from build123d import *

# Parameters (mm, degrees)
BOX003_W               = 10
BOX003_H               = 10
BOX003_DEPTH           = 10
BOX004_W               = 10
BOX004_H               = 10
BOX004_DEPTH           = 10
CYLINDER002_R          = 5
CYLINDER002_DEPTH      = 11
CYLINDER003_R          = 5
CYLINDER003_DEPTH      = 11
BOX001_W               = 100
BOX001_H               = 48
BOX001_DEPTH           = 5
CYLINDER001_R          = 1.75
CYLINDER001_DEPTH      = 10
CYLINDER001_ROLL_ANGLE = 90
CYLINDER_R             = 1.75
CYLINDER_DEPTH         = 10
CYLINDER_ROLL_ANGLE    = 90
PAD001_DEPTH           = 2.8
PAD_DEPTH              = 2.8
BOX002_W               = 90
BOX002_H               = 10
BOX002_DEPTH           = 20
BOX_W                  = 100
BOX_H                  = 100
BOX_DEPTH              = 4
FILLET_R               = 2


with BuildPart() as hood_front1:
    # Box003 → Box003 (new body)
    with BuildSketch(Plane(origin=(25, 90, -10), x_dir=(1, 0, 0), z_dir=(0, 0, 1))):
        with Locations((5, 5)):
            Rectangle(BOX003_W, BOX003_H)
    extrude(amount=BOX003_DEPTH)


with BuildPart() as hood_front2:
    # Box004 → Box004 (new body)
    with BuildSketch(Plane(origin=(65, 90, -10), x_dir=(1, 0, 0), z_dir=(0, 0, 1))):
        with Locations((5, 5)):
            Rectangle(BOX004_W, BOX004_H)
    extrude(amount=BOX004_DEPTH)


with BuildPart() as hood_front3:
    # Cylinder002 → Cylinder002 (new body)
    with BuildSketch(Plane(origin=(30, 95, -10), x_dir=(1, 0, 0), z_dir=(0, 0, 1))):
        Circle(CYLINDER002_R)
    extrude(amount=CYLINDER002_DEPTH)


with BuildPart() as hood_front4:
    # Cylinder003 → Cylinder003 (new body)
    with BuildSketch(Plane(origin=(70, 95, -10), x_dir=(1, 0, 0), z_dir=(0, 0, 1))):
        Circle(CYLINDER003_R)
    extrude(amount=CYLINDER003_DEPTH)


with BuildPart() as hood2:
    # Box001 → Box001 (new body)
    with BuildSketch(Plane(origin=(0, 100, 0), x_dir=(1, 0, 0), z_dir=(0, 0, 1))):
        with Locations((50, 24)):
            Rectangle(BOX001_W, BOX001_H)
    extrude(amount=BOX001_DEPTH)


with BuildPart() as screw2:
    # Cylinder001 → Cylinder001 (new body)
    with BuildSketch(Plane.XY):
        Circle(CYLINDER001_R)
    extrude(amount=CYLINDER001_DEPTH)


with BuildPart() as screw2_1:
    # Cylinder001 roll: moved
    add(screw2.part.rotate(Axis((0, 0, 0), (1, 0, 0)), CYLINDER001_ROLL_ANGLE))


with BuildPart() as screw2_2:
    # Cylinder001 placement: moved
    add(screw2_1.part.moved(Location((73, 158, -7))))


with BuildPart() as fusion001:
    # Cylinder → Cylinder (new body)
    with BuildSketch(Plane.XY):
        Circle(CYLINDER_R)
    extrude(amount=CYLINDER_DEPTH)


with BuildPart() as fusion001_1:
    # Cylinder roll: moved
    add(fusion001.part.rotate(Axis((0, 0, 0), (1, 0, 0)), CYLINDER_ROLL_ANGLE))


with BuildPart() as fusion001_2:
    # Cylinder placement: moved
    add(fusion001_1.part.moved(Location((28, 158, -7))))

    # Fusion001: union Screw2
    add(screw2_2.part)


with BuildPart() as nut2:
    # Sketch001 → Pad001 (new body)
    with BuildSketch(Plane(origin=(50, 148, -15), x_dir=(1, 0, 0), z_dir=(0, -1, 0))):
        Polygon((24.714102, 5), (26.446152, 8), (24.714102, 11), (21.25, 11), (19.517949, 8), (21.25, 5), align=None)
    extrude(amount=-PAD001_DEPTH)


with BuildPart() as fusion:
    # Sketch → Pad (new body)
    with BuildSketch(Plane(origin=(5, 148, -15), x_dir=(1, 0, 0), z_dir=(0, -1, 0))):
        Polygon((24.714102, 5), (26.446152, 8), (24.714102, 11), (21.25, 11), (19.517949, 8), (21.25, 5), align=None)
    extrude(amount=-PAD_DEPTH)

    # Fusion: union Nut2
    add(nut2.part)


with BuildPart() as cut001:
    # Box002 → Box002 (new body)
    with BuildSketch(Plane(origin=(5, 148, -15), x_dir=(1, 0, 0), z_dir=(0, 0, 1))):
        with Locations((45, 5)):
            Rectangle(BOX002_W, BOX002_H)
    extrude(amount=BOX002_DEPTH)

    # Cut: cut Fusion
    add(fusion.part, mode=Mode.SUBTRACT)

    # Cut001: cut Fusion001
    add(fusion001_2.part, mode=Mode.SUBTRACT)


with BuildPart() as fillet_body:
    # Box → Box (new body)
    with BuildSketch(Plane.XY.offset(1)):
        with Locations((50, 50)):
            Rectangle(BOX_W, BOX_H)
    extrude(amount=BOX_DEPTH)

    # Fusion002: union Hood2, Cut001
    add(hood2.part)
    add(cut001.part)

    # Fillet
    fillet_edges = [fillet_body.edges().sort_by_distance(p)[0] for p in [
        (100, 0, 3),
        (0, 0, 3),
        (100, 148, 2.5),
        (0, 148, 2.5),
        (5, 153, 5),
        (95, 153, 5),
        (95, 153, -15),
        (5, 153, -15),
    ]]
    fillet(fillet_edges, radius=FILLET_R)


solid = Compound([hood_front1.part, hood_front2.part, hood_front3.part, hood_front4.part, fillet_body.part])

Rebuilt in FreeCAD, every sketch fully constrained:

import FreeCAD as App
import Part
import Sketcher
from FreeCAD import Vector
Q = App.Units.Quantity


def edges_at(feature, points):
    """Names of the edges that pass closest to the given points."""
    edges = feature.Shape.Edges
    near = lambda p: min(range(len(edges)), key=lambda i: edges[i].distToShape(Part.Vertex(*p))[0])
    return sorted({f"Edge{near(p) + 1}" for p in points})

doc = App.newDocument("Part")
body = doc.addObject("PartDesign::Body", "Body")

sketch1 = body.newObject("Sketcher::SketchObject", "Sketch")
sketch1.AttachmentSupport = (doc.getObject("XY_Plane"), [""])
sketch1.MapMode = "FlatFace"
sketch1.AttachmentOffset = App.Placement(Vector(0, 0, -10), App.Rotation())
sketch1.addGeometry([
    Part.LineSegment(Vector(25, 100, 0), Vector(25, 90, 0)),
    Part.LineSegment(Vector(25, 90, 0), Vector(35, 90, 0)),
    Part.LineSegment(Vector(35, 90, 0), Vector(35, 100, 0)),
    Part.LineSegment(Vector(35, 100, 0), Vector(25, 100, 0)),
], False)
sketch1.addConstraint([
    Sketcher.Constraint("Coincident", 0, 2, 1, 1),
    Sketcher.Constraint("Coincident", 1, 2, 2, 1),
    Sketcher.Constraint("Coincident", 2, 2, 3, 1),
    Sketcher.Constraint("Coincident", 3, 2, 0, 1),
    Sketcher.Constraint("Vertical", 0),
    Sketcher.Constraint("Horizontal", 1),
    Sketcher.Constraint("Vertical", 2),
    Sketcher.Constraint("Horizontal", 3),
    Sketcher.Constraint("Equal", 3, 0),
    Sketcher.Constraint("DistanceX", 1, 1, 1, 2, Q("10 mm")),
    Sketcher.Constraint("DistanceX", -1, 1, 0, 2, Q("25 mm")),
    Sketcher.Constraint("DistanceY", -1, 1, 0, 2, Q("90 mm")),
])
pad1 = body.newObject("PartDesign::Pad", "Pad")
pad1.Profile = sketch1
pad1.Length = 10
body2 = doc.addObject("PartDesign::Body", "Body001")

sketch2 = body2.newObject("Sketcher::SketchObject", "Sketch001")
sketch2.AttachmentSupport = (doc.getObject("XY_Plane001"), [""])
sketch2.MapMode = "FlatFace"
sketch2.AttachmentOffset = App.Placement(Vector(0, 0, -10), App.Rotation())
sketch2.addGeometry([
    Part.LineSegment(Vector(65, 100, 0), Vector(65, 90, 0)),
    Part.LineSegment(Vector(65, 90, 0), Vector(75, 90, 0)),
    Part.LineSegment(Vector(75, 90, 0), Vector(75, 100, 0)),
    Part.LineSegment(Vector(75, 100, 0), Vector(65, 100, 0)),
], False)
sketch2.addConstraint([
    Sketcher.Constraint("Coincident", 0, 2, 1, 1),
    Sketcher.Constraint("Coincident", 1, 2, 2, 1),
    Sketcher.Constraint("Coincident", 2, 2, 3, 1),
    Sketcher.Constraint("Coincident", 3, 2, 0, 1),
    Sketcher.Constraint("Vertical", 0),
    Sketcher.Constraint("Horizontal", 1),
    Sketcher.Constraint("Vertical", 2),
    Sketcher.Constraint("Horizontal", 3),
    Sketcher.Constraint("Equal", 3, 0),
    Sketcher.Constraint("DistanceX", 1, 1, 1, 2, Q("10 mm")),
    Sketcher.Constraint("DistanceX", -1, 1, 0, 2, Q("65 mm")),
    Sketcher.Constraint("DistanceY", -1, 1, 0, 2, Q("90 mm")),
])
pad2 = body2.newObject("PartDesign::Pad", "Pad001")
pad2.Profile = sketch2
pad2.Length = 10
body3 = doc.addObject("PartDesign::Body", "Body002")

sketch3 = body3.newObject("Sketcher::SketchObject", "Sketch002")
sketch3.AttachmentSupport = (doc.getObject("XY_Plane002"), [""])
sketch3.MapMode = "FlatFace"
sketch3.AttachmentOffset = App.Placement(Vector(0, 0, -10), App.Rotation())
sketch3.addGeometry(Part.Circle(Vector(30, 95, 0), Vector(0, 0, 1), 5), False)
sketch3.addConstraint([
    Sketcher.Constraint("Diameter", 0, Q("10 mm")),
    Sketcher.Constraint("DistanceX", -1, 1, 0, 3, Q("30 mm")),
    Sketcher.Constraint("DistanceY", -1, 1, 0, 3, Q("95 mm")),
])
pad3 = body3.newObject("PartDesign::Pad", "Pad002")
pad3.Profile = sketch3
pad3.Length = 11
body4 = doc.addObject("PartDesign::Body", "Body003")

sketch4 = body4.newObject("Sketcher::SketchObject", "Sketch003")
sketch4.AttachmentSupport = (doc.getObject("XY_Plane003"), [""])
sketch4.MapMode = "FlatFace"
sketch4.AttachmentOffset = App.Placement(Vector(0, 0, -10), App.Rotation())
sketch4.addGeometry(Part.Circle(Vector(70, 95, 0), Vector(0, 0, 1), 5), False)
sketch4.addConstraint([
    Sketcher.Constraint("Diameter", 0, Q("10 mm")),
    Sketcher.Constraint("DistanceX", -1, 1, 0, 3, Q("70 mm")),
    Sketcher.Constraint("DistanceY", -1, 1, 0, 3, Q("95 mm")),
])
pad4 = body4.newObject("PartDesign::Pad", "Pad003")
pad4.Profile = sketch4
pad4.Length = 11
body5 = doc.addObject("PartDesign::Body", "Body004")

sketch5 = body5.newObject("Sketcher::SketchObject", "Sketch004")
sketch5.AttachmentSupport = (doc.getObject("XY_Plane004"), [""])
sketch5.MapMode = "FlatFace"
sketch5.addGeometry([
    Part.LineSegment(Vector(0, 148, 0), Vector(0, 100, 0)),
    Part.LineSegment(Vector(0, 100, 0), Vector(100, 100, 0)),
    Part.LineSegment(Vector(100, 100, 0), Vector(100, 148, 0)),
    Part.LineSegment(Vector(100, 148, 0), Vector(0, 148, 0)),
], False)
sketch5.addConstraint([
    Sketcher.Constraint("Coincident", 0, 2, 1, 1),
    Sketcher.Constraint("Coincident", 1, 2, 2, 1),
    Sketcher.Constraint("Coincident", 2, 2, 3, 1),
    Sketcher.Constraint("Coincident", 3, 2, 0, 1),
    Sketcher.Constraint("Vertical", 0),
    Sketcher.Constraint("Horizontal", 1),
    Sketcher.Constraint("Vertical", 2),
    Sketcher.Constraint("Horizontal", 3),
    Sketcher.Constraint("PointOnObject", 0, 2, -2),
    Sketcher.Constraint("DistanceX", 1, 1, 1, 2, Q("100 mm")),
    Sketcher.Constraint("DistanceY", 0, 2, 0, 1, Q("48 mm")),
    Sketcher.Constraint("DistanceY", -1, 1, 0, 2, Q("100 mm")),
])
pad5 = body5.newObject("PartDesign::Pad", "Pad004")
pad5.Profile = sketch5
pad5.Length = 5
body6 = doc.addObject("PartDesign::Body", "Body005")

sketch6 = body6.newObject("Sketcher::SketchObject", "Sketch005")
sketch6.AttachmentSupport = (doc.getObject("XY_Plane005"), [""])
sketch6.MapMode = "FlatFace"
sketch6.addGeometry(Part.Circle(Vector(0, 0, 0), Vector(0, 0, 1), 1.8), False)
sketch6.addConstraint([
    Sketcher.Constraint("Coincident", 0, 3, -1, 1),
    Sketcher.Constraint("Diameter", 0, Q("3.5 mm")),
])
pad6 = body6.newObject("PartDesign::Pad", "Pad005")
pad6.Profile = sketch6
pad6.Length = 10
body7 = doc.addObject("PartDesign::Body", "Body006")
doc.recompute()

body6.Placement = App.Placement(Vector(0, 0, 0), App.Rotation(Vector(1, 0, 0), 90))
boolean = body7.newObject("PartDesign::Boolean", "Boolean")
boolean.Type = "Fuse"
boolean.addObjects([body6])
body8 = doc.addObject("PartDesign::Body", "Body007")
doc.recompute()

body7.Placement = App.Placement(Vector(73, 158, -7), App.Rotation(Vector(0, 0, 1), 0))
boolean2 = body8.newObject("PartDesign::Boolean", "Boolean001")
boolean2.Type = "Fuse"
boolean2.addObjects([body7])
body9 = doc.addObject("PartDesign::Body", "Body008")

sketch7 = body9.newObject("Sketcher::SketchObject", "Sketch006")
sketch7.AttachmentSupport = (doc.getObject("XY_Plane008"), [""])
sketch7.MapMode = "FlatFace"
sketch7.addGeometry(Part.Circle(Vector(0, 0, 0), Vector(0, 0, 1), 1.8), False)
sketch7.addConstraint([
    Sketcher.Constraint("Coincident", 0, 3, -1, 1),
    Sketcher.Constraint("Diameter", 0, Q("3.5 mm")),
])
pad7 = body9.newObject("PartDesign::Pad", "Pad006")
pad7.Profile = sketch7
pad7.Length = 10
body10 = doc.addObject("PartDesign::Body", "Body009")
doc.recompute()

body9.Placement = App.Placement(Vector(0, 0, 0), App.Rotation(Vector(1, 0, 0), 90))
boolean3 = body10.newObject("PartDesign::Boolean", "Boolean002")
boolean3.Type = "Fuse"
boolean3.addObjects([body9])
body11 = doc.addObject("PartDesign::Body", "Body010")
body11.AllowCompound = True
doc.recompute()

body10.Placement = App.Placement(Vector(28, 158, -7), App.Rotation(Vector(0, 0, 1), 0))
boolean4 = body11.newObject("PartDesign::Boolean", "Boolean003")
boolean4.Type = "Fuse"
boolean4.addObjects([body10])
doc.recompute()

boolean5 = body11.newObject("PartDesign::Boolean", "Boolean004")
boolean5.Type = "Fuse"
boolean5.addObjects([body8])
body12 = doc.addObject("PartDesign::Body", "Body011")

sketch8 = body12.newObject("Sketcher::SketchObject", "Sketch007")
sketch8.AttachmentSupport = (doc.getObject("XZ_Plane011"), [""])
sketch8.MapMode = "FlatFace"
sketch8.AttachmentOffset = App.Placement(Vector(0, 0, -148), App.Rotation())
sketch8.addGeometry([
    Part.LineSegment(Vector(74.7, -10, 0), Vector(76.4, -7, 0)),
    Part.LineSegment(Vector(76.4, -7, 0), Vector(74.7, -4, 0)),
    Part.LineSegment(Vector(74.7, -4, 0), Vector(71.2, -4, 0)),
    Part.LineSegment(Vector(71.2, -4, 0), Vector(69.5, -7, 0)),
    Part.LineSegment(Vector(69.5, -7, 0), Vector(71.2, -10, 0)),
    Part.LineSegment(Vector(71.2, -10, 0), Vector(74.7, -10, 0)),
], False)
sketch8.addConstraint([
    Sketcher.Constraint("Coincident", 0, 2, 1, 1),
    Sketcher.Constraint("Coincident", 1, 2, 2, 1),
    Sketcher.Constraint("Coincident", 2, 2, 3, 1),
    Sketcher.Constraint("Coincident", 3, 2, 4, 1),
    Sketcher.Constraint("Coincident", 4, 2, 5, 1),
    Sketcher.Constraint("Coincident", 5, 2, 0, 1),
    Sketcher.Constraint("Horizontal", 2),
    Sketcher.Constraint("Horizontal", 5),
    Sketcher.Constraint("Parallel", 0, 3),
    Sketcher.Constraint("Parallel", 1, 4),
    Sketcher.Constraint("Horizontal", 0, 2, 3, 2),
    Sketcher.Constraint("Vertical", 2, 2, 4, 2),
    Sketcher.Constraint("Vertical", 1, 2, 5, 2),
    Sketcher.Constraint("Angle", 0, Q("60.000012 deg")),
    Sketcher.Constraint("DistanceY", 0, 2, -1, 1, Q("7 mm")),
    Sketcher.Constraint("DistanceY", 1, 2, -1, 1, Q("4 mm")),
    Sketcher.Constraint("DistanceX", -1, 1, 2, 2, Q("71.25 mm")),
    Sketcher.Constraint("DistanceX", 2, 2, 2, 1, Q("3.464102 mm")),
])
pad8 = body12.newObject("PartDesign::Pad", "Pad007")
pad8.Profile = sketch8
pad8.Length = 2.8
pad8.Reversed = True
body13 = doc.addObject("PartDesign::Body", "Body012")
body13.AllowCompound = True

sketch9 = body13.newObject("Sketcher::SketchObject", "Sketch008")
sketch9.AttachmentSupport = (doc.getObject("XZ_Plane012"), [""])
sketch9.MapMode = "FlatFace"
sketch9.AttachmentOffset = App.Placement(Vector(0, 0, -148), App.Rotation())
sketch9.addGeometry([
    Part.LineSegment(Vector(29.7, -10, 0), Vector(31.4, -7, 0)),
    Part.LineSegment(Vector(31.4, -7, 0), Vector(29.7, -4, 0)),
    Part.LineSegment(Vector(29.7, -4, 0), Vector(26.2, -4, 0)),
    Part.LineSegment(Vector(26.2, -4, 0), Vector(24.5, -7, 0)),
    Part.LineSegment(Vector(24.5, -7, 0), Vector(26.2, -10, 0)),
    Part.LineSegment(Vector(26.2, -10, 0), Vector(29.7, -10, 0)),
], False)
sketch9.addConstraint([
    Sketcher.Constraint("Coincident", 0, 2, 1, 1),
    Sketcher.Constraint("Coincident", 1, 2, 2, 1),
    Sketcher.Constraint("Coincident", 2, 2, 3, 1),
    Sketcher.Constraint("Coincident", 3, 2, 4, 1),
    Sketcher.Constraint("Coincident", 4, 2, 5, 1),
    Sketcher.Constraint("Coincident", 5, 2, 0, 1),
    Sketcher.Constraint("Horizontal", 2),
    Sketcher.Constraint("Horizontal", 5),
    Sketcher.Constraint("Parallel", 0, 3),
    Sketcher.Constraint("Parallel", 1, 4),
    Sketcher.Constraint("Horizontal", 0, 2, 3, 2),
    Sketcher.Constraint("Vertical", 2, 2, 4, 2),
    Sketcher.Constraint("Vertical", 1, 2, 5, 2),
    Sketcher.Constraint("Angle", 0, Q("60.000012 deg")),
    Sketcher.Constraint("DistanceY", 0, 2, -1, 1, Q("7 mm")),
    Sketcher.Constraint("DistanceY", 1, 2, -1, 1, Q("4 mm")),
    Sketcher.Constraint("DistanceX", -1, 1, 2, 2, Q("26.25 mm")),
    Sketcher.Constraint("DistanceX", 2, 2, 2, 1, Q("3.464102 mm")),
])
pad9 = body13.newObject("PartDesign::Pad", "Pad008")
pad9.Profile = sketch9
pad9.Length = 2.8
pad9.Reversed = True
doc.recompute()

boolean6 = body13.newObject("PartDesign::Boolean", "Boolean005")
boolean6.Type = "Fuse"
boolean6.addObjects([body12])
body14 = doc.addObject("PartDesign::Body", "Body013")

sketch10 = body14.newObject("Sketcher::SketchObject", "Sketch009")
sketch10.AttachmentSupport = (doc.getObject("XY_Plane013"), [""])
sketch10.MapMode = "FlatFace"
sketch10.AttachmentOffset = App.Placement(Vector(0, 0, -15), App.Rotation())
sketch10.addGeometry([
    Part.LineSegment(Vector(5, 158, 0), Vector(5, 148, 0)),
    Part.LineSegment(Vector(5, 148, 0), Vector(95, 148, 0)),
    Part.LineSegment(Vector(95, 148, 0), Vector(95, 158, 0)),
    Part.LineSegment(Vector(95, 158, 0), Vector(5, 158, 0)),
], False)
sketch10.addConstraint([
    Sketcher.Constraint("Coincident", 0, 2, 1, 1),
    Sketcher.Constraint("Coincident", 1, 2, 2, 1),
    Sketcher.Constraint("Coincident", 2, 2, 3, 1),
    Sketcher.Constraint("Coincident", 3, 2, 0, 1),
    Sketcher.Constraint("Vertical", 0),
    Sketcher.Constraint("Horizontal", 1),
    Sketcher.Constraint("Vertical", 2),
    Sketcher.Constraint("Horizontal", 3),
    Sketcher.Constraint("DistanceX", 1, 1, 1, 2, Q("90 mm")),
    Sketcher.Constraint("DistanceY", 0, 2, 0, 1, Q("10 mm")),
    Sketcher.Constraint("DistanceX", -1, 1, 0, 2, Q("5 mm")),
    Sketcher.Constraint("DistanceY", -1, 1, 0, 2, Q("148 mm")),
])
pad10 = body14.newObject("PartDesign::Pad", "Pad009")
pad10.Profile = sketch10
pad10.Length = 20
doc.recompute()

boolean7 = body14.newObject("PartDesign::Boolean", "Boolean006")
boolean7.Type = "Cut"
boolean7.addObjects([body13])
doc.recompute()

boolean8 = body14.newObject("PartDesign::Boolean", "Boolean007")
boolean8.Type = "Cut"
boolean8.addObjects([body11])
body15 = doc.addObject("PartDesign::Body", "Body014")

sketch11 = body15.newObject("Sketcher::SketchObject", "Sketch010")
sketch11.AttachmentSupport = (doc.getObject("XY_Plane014"), [""])
sketch11.MapMode = "FlatFace"
sketch11.AttachmentOffset = App.Placement(Vector(0, 0, 1), App.Rotation())
sketch11.addGeometry([
    Part.LineSegment(Vector(0, 100, 0), Vector(0, 0, 0)),
    Part.LineSegment(Vector(0, 0, 0), Vector(100, 0, 0)),
    Part.LineSegment(Vector(100, 0, 0), Vector(100, 100, 0)),
    Part.LineSegment(Vector(100, 100, 0), Vector(0, 100, 0)),
], False)
sketch11.addConstraint([
    Sketcher.Constraint("Coincident", 0, 2, 1, 1),
    Sketcher.Constraint("Coincident", 1, 2, 2, 1),
    Sketcher.Constraint("Coincident", 2, 2, 3, 1),
    Sketcher.Constraint("Coincident", 3, 2, 0, 1),
    Sketcher.Constraint("Vertical", 0),
    Sketcher.Constraint("Horizontal", 1),
    Sketcher.Constraint("Vertical", 2),
    Sketcher.Constraint("Horizontal", 3),
    Sketcher.Constraint("Coincident", 0, 2, -1, 1),
    Sketcher.Constraint("Equal", 3, 0),
    Sketcher.Constraint("DistanceX", 1, 1, 1, 2, Q("100 mm")),
])
pad11 = body15.newObject("PartDesign::Pad", "Pad010")
pad11.Profile = sketch11
pad11.Length = 4
doc.recompute()

boolean9 = body15.newObject("PartDesign::Boolean", "Boolean008")
boolean9.Type = "Fuse"
boolean9.addObjects([body5])
doc.recompute()

boolean10 = body15.newObject("PartDesign::Boolean", "Boolean009")
boolean10.Type = "Fuse"
boolean10.addObjects([body14])
doc.recompute()

fillet = body15.newObject("PartDesign::Fillet", "Fillet")
fillet.Base = (boolean10, edges_at(boolean10, [
    (100, 0, 3),
    (0, 0, 3),
    (100, 148, 2.5),
    (0, 148, 2.5),
    (5, 153, 5),
    (95, 153, 5),
    (95, 153, -15),
    (5, 153, -15),
]))
fillet.Radius = 2

doc.recompute()
